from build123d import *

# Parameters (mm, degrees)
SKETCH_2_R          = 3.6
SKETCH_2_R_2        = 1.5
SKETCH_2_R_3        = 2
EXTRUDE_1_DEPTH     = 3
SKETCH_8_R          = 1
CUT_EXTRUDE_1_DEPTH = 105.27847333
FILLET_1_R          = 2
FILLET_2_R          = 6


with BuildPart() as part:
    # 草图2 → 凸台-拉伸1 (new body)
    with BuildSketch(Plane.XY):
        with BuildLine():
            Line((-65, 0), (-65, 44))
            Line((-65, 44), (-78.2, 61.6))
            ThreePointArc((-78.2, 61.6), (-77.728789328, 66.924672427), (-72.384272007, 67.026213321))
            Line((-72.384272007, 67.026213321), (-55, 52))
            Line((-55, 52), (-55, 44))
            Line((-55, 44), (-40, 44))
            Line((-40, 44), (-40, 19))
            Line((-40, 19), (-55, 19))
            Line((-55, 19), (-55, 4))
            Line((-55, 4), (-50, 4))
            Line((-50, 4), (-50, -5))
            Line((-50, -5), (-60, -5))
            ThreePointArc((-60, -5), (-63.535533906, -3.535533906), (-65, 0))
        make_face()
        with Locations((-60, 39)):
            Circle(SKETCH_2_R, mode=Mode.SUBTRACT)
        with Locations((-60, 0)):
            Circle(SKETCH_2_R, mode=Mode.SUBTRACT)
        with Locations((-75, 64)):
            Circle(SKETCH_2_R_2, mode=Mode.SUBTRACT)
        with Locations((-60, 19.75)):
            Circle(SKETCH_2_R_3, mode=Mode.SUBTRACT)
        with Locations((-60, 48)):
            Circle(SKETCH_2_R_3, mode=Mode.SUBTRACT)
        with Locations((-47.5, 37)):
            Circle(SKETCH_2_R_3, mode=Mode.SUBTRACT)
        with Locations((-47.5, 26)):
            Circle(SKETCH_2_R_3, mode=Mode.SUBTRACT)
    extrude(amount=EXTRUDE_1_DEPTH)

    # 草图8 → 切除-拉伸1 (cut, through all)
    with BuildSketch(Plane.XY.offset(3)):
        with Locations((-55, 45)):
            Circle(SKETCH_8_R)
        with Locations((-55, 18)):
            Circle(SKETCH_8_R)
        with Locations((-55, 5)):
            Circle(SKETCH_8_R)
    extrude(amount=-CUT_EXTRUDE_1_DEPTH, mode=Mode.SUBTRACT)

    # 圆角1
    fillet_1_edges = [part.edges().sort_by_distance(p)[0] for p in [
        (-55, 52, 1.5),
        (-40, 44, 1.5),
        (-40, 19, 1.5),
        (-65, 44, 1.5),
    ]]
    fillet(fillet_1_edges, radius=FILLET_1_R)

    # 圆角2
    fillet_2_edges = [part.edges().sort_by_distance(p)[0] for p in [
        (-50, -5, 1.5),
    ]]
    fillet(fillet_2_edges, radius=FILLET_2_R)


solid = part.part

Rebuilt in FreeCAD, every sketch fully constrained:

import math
import FreeCAD as App
import Part
import Sketcher

V = App.Vector


def edges_at(feature, points):
    """Names of the edges that pass closest to the given points."""
    edges = feature.Shape.Edges
    near = lambda p: min(range(len(edges)), key=lambda i: edges[i].distToShape(Part.Vertex(*p))[0])
    return sorted({f"Edge{near(p) + 1}" for p in points})

doc = App.newDocument("Part")
body = doc.addObject("PartDesign::Body", "Body")

sketch1 = body.newObject("Sketcher::SketchObject", "Sketch")
sketch1.AttachmentSupport = (doc.getObject("XY_Plane"), [""])
sketch1.MapMode = "FlatFace"
sketch1.addGeometry(Part.LineSegment(V(-65, 44, 0), V(-65, 0, 0)), False)
sketch1.addGeometry(Part.ArcOfCircle(Part.Circle(V(-60, 0, 0), V(0, 0, 1), 5), math.radians(180), math.radians(270)), False)
sketch1.addGeometry(Part.LineSegment(V(-60, -5, 0), V(-50, -5, 0)), False)
sketch1.addGeometry(Part.LineSegment(V(-50, -5, 0), V(-50, 4, 0)), False)
sketch1.addGeometry(Part.LineSegment(V(-50, 4, 0), V(-55, 4, 0)), False)
sketch1.addGeometry(Part.LineSegment(V(-55, 4, 0), V(-55, 19, 0)), False)
sketch1.addGeometry(Part.LineSegment(V(-55, 19, 0), V(-40, 19, 0)), False)
sketch1.addGeometry(Part.LineSegment(V(-40, 19, 0), V(-40, 44, 0)), False)
sketch1.addGeometry(Part.LineSegment(V(-40, 44, 0), V(-55, 44, 0)), False)
sketch1.addGeometry(Part.LineSegment(V(-55, 44, 0), V(-55, 52, 0)), False)
sketch1.addGeometry(Part.LineSegment(V(-55, 52, 0), V(-72.384272, 67.026213, 0)), False)
sketch1.addGeometry(Part.ArcOfCircle(Part.Circle(V(-75, 64, 0), V(0, 0, 1), 4), math.radians(49.161282), math.radians(216.869898)), False)
sketch1.addGeometry(Part.LineSegment(V(-78.2, 61.6, 0), V(-65, 44, 0)), False)
sketch1.addGeometry(Part.Circle(V(-60, 0, 0), V(0, 0, 1), 3.6), False)
sketch1.addGeometry(Part.Circle(V(-47.5, 26, 0), V(0, 0, 1), 2), False)
sketch1.addGeometry(Part.Circle(V(-60, 19.75, 0), V(0, 0, 1), 2), False)
sketch1.addGeometry(Part.Circle(V(-47.5, 37, 0), V(0, 0, 1), 2), False)
sketch1.addGeometry(Part.Circle(V(-60, 39, 0), V(0, 0, 1), 3.6), False)
sketch1.addGeometry(Part.Circle(V(-60, 48, 0), V(0, 0, 1), 2), False)
sketch1.addGeometry(Part.Circle(V(-75, 64, 0), V(0, 0, 1), 1.5), False)
sketch1.addConstraint(Sketcher.Constraint("Tangent", 0, 2, 1, 1))
sketch1.addConstraint(Sketcher.Constraint("Tangent", 1, 2, 2, 1))
sketch1.addConstraint(Sketcher.Constraint("Coincident", 2, 2, 3, 1))
sketch1.addConstraint(Sketcher.Constraint("Coincident", 3, 2, 4, 1))
sketch1.addConstraint(Sketcher.Constraint("Coincident", 4, 2, 5, 1))
sketch1.addConstraint(Sketcher.Constraint("Coincident", 5, 2, 6, 1))
sketch1.addConstraint(Sketcher.Constraint("Coincident", 6, 2, 7, 1))
sketch1.addConstraint(Sketcher.Constraint("Coincident", 7, 2, 8, 1))
sketch1.addConstraint(Sketcher.Constraint("Coincident", 8, 2, 9, 1))
sketch1.addConstraint(Sketcher.Constraint("Coincident", 9, 2, 10, 1))
sketch1.addConstraint(Sketcher.Constraint("Tangent", 10, 2, 11, 1))
sketch1.addConstraint(Sketcher.Constraint("Tangent", 11, 2, 12, 1))
sketch1.addConstraint(Sketcher.Constraint("Coincident", 12, 2, 0, 1))
sketch1.addConstraint(Sketcher.Constraint("Vertical", 0))
sketch1.addConstraint(Sketcher.Constraint("Horizontal", 2))
sketch1.addConstraint(Sketcher.Constraint("Vertical", 3))
sketch1.addConstraint(Sketcher.Constraint("Horizontal", 4))
sketch1.addConstraint(Sketcher.Constraint("Vertical", 5))
sketch1.addConstraint(Sketcher.Constraint("Horizontal", 6))
sketch1.addConstraint(Sketcher.Constraint("Vertical", 7))
sketch1.addConstraint(Sketcher.Constraint("Horizontal", 8))
sketch1.addConstraint(Sketcher.Constraint("Vertical", 9))
sketch1.addConstraint(Sketcher.Constraint("Coincident", 13, 3, 1, 3))
sketch1.addConstraint(Sketcher.Constraint("Coincident", 19, 3, 11, 3))
sketch1.addConstraint(Sketcher.Constraint("Equal", 14, 15))
sketch1.addConstraint(Sketcher.Constraint("Equal", 15, 16))
sketch1.addConstraint(Sketcher.Constraint("Equal", 13, 17))
sketch1.addConstraint(Sketcher.Constraint("Equal", 16, 18))
sketch1.addConstraint(Sketcher.Constraint("PointOnObject", 1, 3, -1))
sketch1.addConstraint(Sketcher.Constraint("Horizontal", 8, 2, 12, 2))
sketch1.addConstraint(Sketcher.Constraint("Vertical", 13, 3, 15, 3))
sketch1.addConstraint(Sketcher.Constraint("Vertical", 14, 3, 16, 3))
sketch1.addConstraint(Sketcher.Constraint("Vertical", 15, 3, 17, 3))
sketch1.addConstraint(Sketcher.Constraint("Vertical", 17, 3, 18, 3))
sketch1.addConstraint(Sketcher.Constraint("Vertical", 5, 2, 8, 2))
sketch1.addConstraint(Sketcher.Constraint("Equal", 8, 5))
sketch1.addConstraint(Sketcher.Constraint("Diameter", 14, 4.0))
sketch1.addConstraint(Sketcher.Constraint("Diameter", 19, 3.0))
sketch1.addConstraint(Sketcher.Constraint("Radius", 1, 5.0))
sketch1.addConstraint(Sketcher.Constraint("Radius", 11, 4.0))
sketch1.addConstraint(Sketcher.Constraint("Diameter", 13, 7.2))
sketch1.addConstraint(Sketcher.Constraint("DistanceX", 2, 1, 2, 2, 10.0))
sketch1.addConstraint(Sketcher.Constraint("DistanceX", 4, 2, 4, 1, 5.0))
sketch1.addConstraint(Sketcher.Constraint("DistanceX", 6, 1, 6, 2, 15.0))
sketch1.addConstraint(Sketcher.Constraint("DistanceY", 0, 2, 0, 1, 44.0))
sketch1.addConstraint(Sketcher.Constraint("DistanceY", 3, 1, 3, 2, 9.0))
sketch1.addConstraint(Sketcher.Constraint("DistanceY", 9, 1, 9, 2, 8.0))
sketch1.addConstraint(Sketcher.Constraint("Distance", 12, 22.0))
sketch1.addConstraint(Sketcher.Constraint("DistanceX", 1, 3, -1, 1, 60.0))
sketch1.addConstraint(Sketcher.Constraint("DistanceX", 11, 3, -1, 1, 75.0))
sketch1.addConstraint(Sketcher.Constraint("DistanceY", -1, 1, 14, 3, 26.0))
sketch1.addConstraint(Sketcher.Constraint("DistanceY", -1, 1, 16, 3, 37.0))
sketch1.addConstraint(Sketcher.Constraint("DistanceY", -1, 1, 17, 3, 39.0))
sketch1.addConstraint(Sketcher.Constraint("DistanceY", -1, 1, 18, 3, 48.0))
sketch1.addConstraint(Sketcher.Constraint("DistanceX", 14, 3, -1, 1, 47.5))
sketch1.addConstraint(Sketcher.Constraint("DistanceY", -1, 1, 15, 3, 19.75))
pad1 = body.newObject("PartDesign::Pad", "Pad")
pad1.Profile = sketch1
pad1.Length = 3

sketch2 = body.newObject("Sketcher::SketchObject", "Sketch001")
sketch2.AttachmentSupport = (doc.getObject("XY_Plane"), [""])
sketch2.MapMode = "FlatFace"
sketch2.AttachmentOffset = App.Placement(V(0, 0, 3), App.Rotation())
sketch2.addGeometry(Part.Circle(V(-55, 45, 0), V(0, 0, 1), 1), False)
sketch2.addGeometry(Part.Circle(V(-55, 18, 0), V(0, 0, 1), 1), False)
sketch2.addGeometry(Part.Circle(V(-55, 5, 0), V(0, 0, 1), 1), False)
sketch2.addConstraint(Sketcher.Constraint("Equal", 0, 1))
sketch2.addConstraint(Sketcher.Constraint("Equal", 1, 2))
sketch2.addConstraint(Sketcher.Constraint("Vertical", 0, 3, 1, 3))
sketch2.addConstraint(Sketcher.Constraint("Vertical", 1, 3, 2, 3))
sketch2.addConstraint(Sketcher.Constraint("Diameter", 0, 2.0))
sketch2.addConstraint(Sketcher.Constraint("DistanceX", 0, 3, -1, 1, 55.0))
sketch2.addConstraint(Sketcher.Constraint("DistanceY", -1, 1, 0, 3, 45.0))
sketch2.addConstraint(Sketcher.Constraint("DistanceY", -1, 1, 1, 3, 18.0))
sketch2.addConstraint(Sketcher.Constraint("DistanceY", -1, 1, 2, 3, 5.0))
pocket1 = body.newObject("PartDesign::Pocket", "Pocket")
pocket1.Profile = sketch2
pocket1.Type = "ThroughAll"
doc.recompute()

fillet = body.newObject("PartDesign::Fillet", "Fillet")
fillet.Base = (pocket1, edges_at(pocket1, [
    (-55, 52, 1.5),
    (-40, 44, 1.5),
    (-40, 19, 1.5),
    (-65, 44, 1.5),
]))
fillet.Radius = 2
doc.recompute()

fillet2 = body.newObject("PartDesign::Fillet", "Fillet001")
fillet2.Base = (fillet, edges_at(fillet, [(-50, -5, 1.5)]))
fillet2.Radius = 6

doc.recompute()
